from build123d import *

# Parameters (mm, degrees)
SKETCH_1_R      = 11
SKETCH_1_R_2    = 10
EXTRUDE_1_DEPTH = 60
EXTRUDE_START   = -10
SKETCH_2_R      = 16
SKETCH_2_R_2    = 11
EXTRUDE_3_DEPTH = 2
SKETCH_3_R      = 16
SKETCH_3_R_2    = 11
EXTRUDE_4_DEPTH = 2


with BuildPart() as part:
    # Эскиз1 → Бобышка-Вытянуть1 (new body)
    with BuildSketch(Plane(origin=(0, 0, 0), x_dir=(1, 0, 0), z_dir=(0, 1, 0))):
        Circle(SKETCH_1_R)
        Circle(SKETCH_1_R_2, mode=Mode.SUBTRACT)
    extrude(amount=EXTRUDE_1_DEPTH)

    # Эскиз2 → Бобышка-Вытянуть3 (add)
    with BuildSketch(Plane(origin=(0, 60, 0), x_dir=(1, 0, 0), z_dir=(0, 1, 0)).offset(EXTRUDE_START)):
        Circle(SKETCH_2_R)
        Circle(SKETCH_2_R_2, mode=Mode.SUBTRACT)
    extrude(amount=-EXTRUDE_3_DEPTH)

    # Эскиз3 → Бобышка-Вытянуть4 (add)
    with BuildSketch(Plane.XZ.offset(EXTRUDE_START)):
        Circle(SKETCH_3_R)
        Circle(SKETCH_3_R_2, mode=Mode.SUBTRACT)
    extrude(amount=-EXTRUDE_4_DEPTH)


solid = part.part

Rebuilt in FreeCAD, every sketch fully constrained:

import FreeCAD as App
import Part
import Sketcher

V = App.Vector
Q = App.Units.Quantity

doc = App.newDocument("Part")
params = doc.addObject("Spreadsheet::Sheet", "Params")
for row, (alias, value) in enumerate([
    ("sketch1_diameter", "22 mm"),
    ("sketch1_diameter2", "20 mm"),
    ("pad1_length", "60 mm"),
    ("sketch2_diameter", "32 mm"),
    ("sketch2_diameter2", "22 mm"),
    ("pad2_length", "2 mm"),
    ("sketch3_diameter", "32 mm"),
    ("sketch3_diameter2", "22 mm"),
    ("pad3_length", "2 mm"),
], start=1):
    params.set(f"A{row}", alias)
    params.set(f"B{row}", "=" + value)
    params.setAlias(f"B{row}", alias)

body = doc.addObject("PartDesign::Body", "Body")

sketch1 = doc.addObject("Sketcher::SketchObject", "Sketch")
body.addObject(sketch1)
sketch1.AttachmentSupport = (doc.XZ_Plane, [""])
sketch1.MapMode = "FlatFace"
sketch1.addGeometry(Part.Circle(V(0, 0, 0), V(0, 0, 1), 11), False)
sketch1.addGeometry(Part.Circle(V(0, 0, 0), V(0, 0, 1), 10), False)
sketch1.addConstraint(Sketcher.Constraint("Coincident", 0, 3, -1, 1))
sketch1.addConstraint(Sketcher.Constraint("Coincident", 1, 3, -1, 1))
sketch1.addConstraint(Sketcher.Constraint("Diameter", 0, Q("22 mm")))
sketch1.addConstraint(Sketcher.Constraint("Diameter", 1, Q("20 mm")))
sketch1.setExpression("Constraints[2]", "Params.sketch1_diameter")
sketch1.setExpression("Constraints[3]", "Params.sketch1_diameter2")
pad1 = doc.addObject("PartDesign::Pad", "Pad")
body.addObject(pad1)
pad1.Profile = sketch1
pad1.setExpression("Length", "Params.pad1_length")
pad1.Reversed = True

sketch2 = doc.addObject("Sketcher::SketchObject", "Sketch001")
body.addObject(sketch2)
sketch2.AttachmentSupport = (doc.XZ_Plane, [""])
sketch2.MapMode = "FlatFace"
sketch2.AttachmentOffset = App.Placement(V(0, 0, -50), App.Rotation())
sketch2.addGeometry(Part.Circle(V(0, 0, 0), V(0, 0, 1), 16), False)
sketch2.addGeometry(Part.Circle(V(0, 0, 0), V(0, 0, 1), 11), False)
sketch2.addConstraint(Sketcher.Constraint("Coincident", 0, 3, -1, 1))
sketch2.addConstraint(Sketcher.Constraint("Coincident", 1, 3, -1, 1))
sketch2.addConstraint(Sketcher.Constraint("Diameter", 0, Q("32 mm")))
sketch2.addConstraint(Sketcher.Constraint("Diameter", 1, Q("22 mm")))
sketch2.setExpression("Constraints[2]", "Params.sketch2_diameter")
sketch2.setExpression("Constraints[3]", "Params.sketch2_diameter2")
pad2 = doc.addObject("PartDesign::Pad", "Pad001")
body.addObject(pad2)
pad2.Profile = sketch2
pad2.setExpression("Length", "Params.pad2_length")

sketch3 = doc.addObject("Sketcher::SketchObject", "Sketch002")
body.addObject(sketch3)
sketch3.AttachmentSupport = (doc.XZ_Plane, [""])
sketch3.MapMode = "FlatFace"
sketch3.AttachmentOffset = App.Placement(V(0, 0, -10), App.Rotation())
sketch3.addGeometry(Part.Circle(V(0, 0, 0), V(0, 0, 1), 16), False)
sketch3.addGeometry(Part.Circle(V(0, 0, 0), V(0, 0, 1), 11), False)
sketch3.addConstraint(Sketcher.Constraint("Coincident", 0, 3, -1, 1))
sketch3.addConstraint(Sketcher.Constraint("Coincident", 1, 3, -1, 1))
sketch3.addConstraint(Sketcher.Constraint("Diameter", 0, Q("32 mm")))
sketch3.addConstraint(Sketcher.Constraint("Diameter", 1, Q("22 mm")))
sketch3.setExpression("Constraints[2]", "Params.sketch3_diameter")
sketch3.setExpression("Constraints[3]", "Params.sketch3_diameter2")
pad3 = doc.addObject("PartDesign::Pad", "Pad002")
body.addObject(pad3)
pad3.Profile = sketch3
pad3.setExpression("Length", "Params.pad3_length")
pad3.Reversed = True

doc.recompute()
